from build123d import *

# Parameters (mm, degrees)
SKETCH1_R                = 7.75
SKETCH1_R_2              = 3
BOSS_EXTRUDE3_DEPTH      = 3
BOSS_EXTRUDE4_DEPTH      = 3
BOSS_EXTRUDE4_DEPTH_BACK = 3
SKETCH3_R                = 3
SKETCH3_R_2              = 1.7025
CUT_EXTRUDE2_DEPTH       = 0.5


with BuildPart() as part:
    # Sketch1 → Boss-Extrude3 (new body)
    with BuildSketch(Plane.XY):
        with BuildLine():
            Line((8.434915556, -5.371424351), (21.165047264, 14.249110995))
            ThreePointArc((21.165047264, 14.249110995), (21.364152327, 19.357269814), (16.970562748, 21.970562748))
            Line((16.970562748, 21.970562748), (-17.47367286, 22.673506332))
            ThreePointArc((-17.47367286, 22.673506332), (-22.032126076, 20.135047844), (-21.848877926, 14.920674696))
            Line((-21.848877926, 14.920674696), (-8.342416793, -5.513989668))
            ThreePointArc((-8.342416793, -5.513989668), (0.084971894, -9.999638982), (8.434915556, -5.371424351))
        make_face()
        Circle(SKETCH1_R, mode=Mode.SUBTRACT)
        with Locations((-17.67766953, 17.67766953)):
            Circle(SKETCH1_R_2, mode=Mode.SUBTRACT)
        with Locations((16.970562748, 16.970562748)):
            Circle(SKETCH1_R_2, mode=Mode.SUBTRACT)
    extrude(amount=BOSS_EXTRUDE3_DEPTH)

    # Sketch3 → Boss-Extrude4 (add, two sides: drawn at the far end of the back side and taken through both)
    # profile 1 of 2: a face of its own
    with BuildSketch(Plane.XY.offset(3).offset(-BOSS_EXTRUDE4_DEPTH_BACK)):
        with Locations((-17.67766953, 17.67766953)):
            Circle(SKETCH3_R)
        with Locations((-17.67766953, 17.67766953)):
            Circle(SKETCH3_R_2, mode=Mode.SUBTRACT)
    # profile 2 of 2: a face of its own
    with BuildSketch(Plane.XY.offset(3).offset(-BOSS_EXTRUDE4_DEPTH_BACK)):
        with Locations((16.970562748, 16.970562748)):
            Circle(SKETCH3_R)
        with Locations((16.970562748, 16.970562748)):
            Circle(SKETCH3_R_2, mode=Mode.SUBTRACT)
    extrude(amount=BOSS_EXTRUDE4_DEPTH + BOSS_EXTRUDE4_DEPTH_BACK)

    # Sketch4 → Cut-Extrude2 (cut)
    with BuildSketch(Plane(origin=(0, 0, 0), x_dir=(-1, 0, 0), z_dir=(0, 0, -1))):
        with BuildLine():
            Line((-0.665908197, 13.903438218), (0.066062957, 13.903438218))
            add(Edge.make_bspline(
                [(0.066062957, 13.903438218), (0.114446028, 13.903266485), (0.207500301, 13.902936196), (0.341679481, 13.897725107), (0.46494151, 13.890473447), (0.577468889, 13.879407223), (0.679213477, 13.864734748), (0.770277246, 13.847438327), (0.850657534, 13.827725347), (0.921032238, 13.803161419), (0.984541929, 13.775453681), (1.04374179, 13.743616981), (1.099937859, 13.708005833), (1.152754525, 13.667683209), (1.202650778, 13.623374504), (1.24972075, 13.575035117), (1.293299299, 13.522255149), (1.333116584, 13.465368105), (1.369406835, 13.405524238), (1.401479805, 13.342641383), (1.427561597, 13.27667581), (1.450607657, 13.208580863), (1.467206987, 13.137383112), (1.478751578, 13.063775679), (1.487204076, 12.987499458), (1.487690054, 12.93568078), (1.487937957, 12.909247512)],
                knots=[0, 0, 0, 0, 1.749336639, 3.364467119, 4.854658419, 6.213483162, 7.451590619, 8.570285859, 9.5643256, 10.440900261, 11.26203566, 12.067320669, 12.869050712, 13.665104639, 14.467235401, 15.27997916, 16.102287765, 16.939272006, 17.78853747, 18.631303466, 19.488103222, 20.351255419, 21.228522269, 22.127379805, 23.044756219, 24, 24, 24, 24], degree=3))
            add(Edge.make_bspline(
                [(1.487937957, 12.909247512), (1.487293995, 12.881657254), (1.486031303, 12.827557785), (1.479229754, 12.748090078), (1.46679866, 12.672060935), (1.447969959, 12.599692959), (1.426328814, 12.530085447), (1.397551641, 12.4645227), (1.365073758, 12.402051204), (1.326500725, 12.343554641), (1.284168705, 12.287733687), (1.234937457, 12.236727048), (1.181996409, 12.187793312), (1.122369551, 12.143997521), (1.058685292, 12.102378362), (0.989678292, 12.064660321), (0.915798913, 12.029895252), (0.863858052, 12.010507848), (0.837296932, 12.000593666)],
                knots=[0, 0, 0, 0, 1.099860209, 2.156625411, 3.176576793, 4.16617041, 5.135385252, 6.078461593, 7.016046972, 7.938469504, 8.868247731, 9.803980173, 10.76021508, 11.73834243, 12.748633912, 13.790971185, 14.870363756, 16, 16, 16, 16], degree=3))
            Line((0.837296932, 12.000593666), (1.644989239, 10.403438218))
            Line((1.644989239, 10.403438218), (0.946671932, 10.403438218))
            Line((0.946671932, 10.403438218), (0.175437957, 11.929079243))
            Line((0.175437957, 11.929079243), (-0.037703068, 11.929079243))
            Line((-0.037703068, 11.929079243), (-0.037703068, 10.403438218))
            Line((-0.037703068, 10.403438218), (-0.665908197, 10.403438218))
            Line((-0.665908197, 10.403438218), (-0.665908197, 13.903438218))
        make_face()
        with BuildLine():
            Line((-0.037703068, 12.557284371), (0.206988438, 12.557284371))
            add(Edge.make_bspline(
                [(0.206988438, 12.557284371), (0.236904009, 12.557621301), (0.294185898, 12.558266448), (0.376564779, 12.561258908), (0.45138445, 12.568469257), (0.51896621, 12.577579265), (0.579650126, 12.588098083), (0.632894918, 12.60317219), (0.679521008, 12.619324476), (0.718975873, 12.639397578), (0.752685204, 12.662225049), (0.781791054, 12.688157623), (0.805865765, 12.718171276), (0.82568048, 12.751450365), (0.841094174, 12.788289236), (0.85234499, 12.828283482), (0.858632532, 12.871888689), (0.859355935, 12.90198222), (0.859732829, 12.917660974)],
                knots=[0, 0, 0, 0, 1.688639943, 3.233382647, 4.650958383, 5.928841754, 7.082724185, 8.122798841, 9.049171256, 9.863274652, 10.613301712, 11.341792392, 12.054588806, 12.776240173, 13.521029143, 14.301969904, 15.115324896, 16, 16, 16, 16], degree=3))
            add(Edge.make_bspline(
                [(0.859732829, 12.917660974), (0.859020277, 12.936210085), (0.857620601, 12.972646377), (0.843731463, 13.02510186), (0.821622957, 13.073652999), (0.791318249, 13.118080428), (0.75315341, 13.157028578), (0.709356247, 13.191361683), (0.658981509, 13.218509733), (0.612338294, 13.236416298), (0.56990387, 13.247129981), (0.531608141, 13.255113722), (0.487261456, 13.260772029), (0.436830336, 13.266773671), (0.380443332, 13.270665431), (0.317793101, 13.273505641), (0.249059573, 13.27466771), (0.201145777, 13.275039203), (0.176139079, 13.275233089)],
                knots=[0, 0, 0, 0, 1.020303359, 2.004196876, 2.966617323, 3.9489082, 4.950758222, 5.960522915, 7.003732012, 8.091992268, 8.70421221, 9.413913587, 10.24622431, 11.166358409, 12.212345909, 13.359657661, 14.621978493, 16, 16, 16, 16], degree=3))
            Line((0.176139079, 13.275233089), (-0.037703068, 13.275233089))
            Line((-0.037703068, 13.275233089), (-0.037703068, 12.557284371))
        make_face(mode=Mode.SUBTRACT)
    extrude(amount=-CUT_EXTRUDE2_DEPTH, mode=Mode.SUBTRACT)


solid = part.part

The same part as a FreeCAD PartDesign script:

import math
import FreeCAD as App
import Part
import Sketcher

V = App.Vector

doc = App.newDocument("Part")
body = doc.addObject("PartDesign::Body", "Body")

sketch1 = body.newObject("Sketcher::SketchObject", "Sketch")
sketch1.AttachmentSupport = (doc.getObject("XY_Plane"), [""])
sketch1.MapMode = "FlatFace"
sketch1.addGeometry(Part.LineSegment(V(8.4, -5.4, 0), V(21.2, 14.2, 0)), False)
sketch1.addGeometry(Part.ArcOfCircle(Part.Circle(V(17, 17, 0), V(0, 0, 1), 5), math.radians(-33), math.radians(90)), False)
sketch1.addGeometry(Part.LineSegment(V(17, 22, 0), V(-17.5, 22.7, 0)), False)
sketch1.addGeometry(Part.ArcOfCircle(Part.Circle(V(-17.7, 17.7, 0), V(0, 0, 1), 5), math.radians(88), math.radians(213)), False)
sketch1.addGeometry(Part.LineSegment(V(-21.8, 14.9, 0), V(-8.3, -5.5, 0)), False)
sketch1.addGeometry(Part.ArcOfCircle(Part.Circle(V(0, 0, 0), V(0, 0, 1), 10), math.radians(-147), math.radians(-32)), False)
sketch1.addGeometry(Part.Circle(V(0, 0, 0), V(0, 0, 1), 7.8), False)
sketch1.addGeometry(Part.Circle(V(-17.7, 17.7, 0), V(0, 0, 1), 3), False)
sketch1.addGeometry(Part.Circle(V(17, 17, 0), V(0, 0, 1), 3), False)
sketch1.addConstraint(Sketcher.Constraint("Tangent", 0, 2, 1, 1))
sketch1.addConstraint(Sketcher.Constraint("Coincident", 1, 2, 2, 1))
sketch1.addConstraint(Sketcher.Constraint("Coincident", 2, 2, 3, 1))
sketch1.addConstraint(Sketcher.Constraint("Tangent", 3, 2, 4, 1))
sketch1.addConstraint(Sketcher.Constraint("Tangent", 4, 2, 5, 1))
sketch1.addConstraint(Sketcher.Constraint("Coincident", 5, 2, 0, 1))
sketch1.addConstraint(Sketcher.Constraint("Coincident", 5, 3, -1, 1))
sketch1.addConstraint(Sketcher.Constraint("Coincident", 6, 3, -1, 1))
sketch1.addConstraint(Sketcher.Constraint("Coincident", 7, 3, 3, 3))
sketch1.addConstraint(Sketcher.Constraint("Coincident", 8, 3, 1, 3))
sketch1.addConstraint(Sketcher.Constraint("Equal", 1, 3))
sketch1.addConstraint(Sketcher.Constraint("Equal", 7, 8))
sketch1.addConstraint(Sketcher.Constraint("Vertical", 8, 3, 1, 2))
sketch1.addConstraint(Sketcher.Constraint("Diameter", 7, 6.0))
sketch1.addConstraint(Sketcher.Constraint("Radius", 1, 5.0))
sketch1.addConstraint(Sketcher.Constraint("Radius", 5, 10.0))
sketch1.addConstraint(Sketcher.Constraint("Diameter", 6, 15.5))
sketch1.addConstraint(Sketcher.Constraint("DistanceX", 3, 3, -1, 1, 17.67767))
sketch1.addConstraint(Sketcher.Constraint("DistanceY", -1, 1, 3, 3, 17.67767))
sketch1.addConstraint(Sketcher.Constraint("DistanceY", -1, 1, 0, 2, 14.249111))
sketch1.addConstraint(Sketcher.Constraint("DistanceY", 0, 2, 1, 3, 2.721452))
sketch1.addConstraint(Sketcher.Constraint("DistanceY", 3, 2, 2, 2, 7.752832))
sketch1.addConstraint(Sketcher.Constraint("DistanceX", 5, 2, 0, 2, 12.730132))
pad1 = body.newObject("PartDesign::Pad", "Pad")
pad1.Profile = sketch1
pad1.Length = 3

sketch2 = body.newObject("Sketcher::SketchObject", "Sketch001")
sketch2.AttachmentSupport = (doc.getObject("XY_Plane"), [""])
sketch2.MapMode = "FlatFace"
sketch2.AttachmentOffset = App.Placement(V(0, 0, 3), App.Rotation())
sketch2.addGeometry(Part.Circle(V(-17.7, 17.7, 0), V(0, 0, 1), 3), False)
sketch2.addGeometry(Part.Circle(V(-17.7, 17.7, 0), V(0, 0, 1), 1.7), False)
sketch2.addGeometry(Part.Circle(V(17, 17, 0), V(0, 0, 1), 3), False)
sketch2.addGeometry(Part.Circle(V(17, 17, 0), V(0, 0, 1), 1.7), False)
sketch2.addConstraint(Sketcher.Constraint("Coincident", 1, 3, 0, 3))
sketch2.addConstraint(Sketcher.Constraint("Coincident", 3, 3, 2, 3))
sketch2.addConstraint(Sketcher.Constraint("Equal", 0, 2))
sketch2.addConstraint(Sketcher.Constraint("Equal", 1, 3))
sketch2.addConstraint(Sketcher.Constraint("Diameter", 0, 6.0))
sketch2.addConstraint(Sketcher.Constraint("Diameter", 1, 3.405))
sketch2.addConstraint(Sketcher.Constraint("DistanceX", 0, 3, -1, 1, 17.67767))
sketch2.addConstraint(Sketcher.Constraint("DistanceY", -1, 1, 0, 3, 17.67767))
sketch2.addConstraint(Sketcher.Constraint("DistanceX", -1, 1, 2, 3, 16.970563))
sketch2.addConstraint(Sketcher.Constraint("DistanceY", -1, 1, 2, 3, 16.970563))
pad2 = body.newObject("PartDesign::Pad", "Pad001")
pad2.Profile = sketch2
pad2.Type = "TwoLengths"
pad2.Length = 3
pad2.Length2 = 3

sketch3 = body.newObject("Sketcher::SketchObject", "Sketch002")
sketch3.AttachmentSupport = (doc.getObject("XY_Plane"), [""])
sketch3.MapMode = "FlatFace"
sketch3.addGeometry(Part.LineSegment(V(-0.066063, 13.903438, 0), V(0.665908, 13.903438, 0)), False)
sketch3.addGeometry(Part.LineSegment(V(0.665908, 13.903438, 0), V(0.665908, 10.403438, 0)), False)
sketch3.addGeometry(Part.LineSegment(V(0.665908, 10.403438, 0), V(0.037703, 10.403438, 0)), False)
sketch3.addGeometry(Part.LineSegment(V(0.037703, 10.403438, 0), V(0.037703, 11.929079, 0)), False)
sketch3.addGeometry(Part.LineSegment(V(0.037703, 11.929079, 0), V(-0.175438, 11.929079, 0)), False)
sketch3.addGeometry(Part.LineSegment(V(-0.175438, 11.929079, 0), V(-0.946672, 10.403438, 0)), False)
sketch3.addGeometry(Part.LineSegment(V(-0.946672, 10.403438, 0), V(-1.644989, 10.403438, 0)), False)
sketch3.addGeometry(Part.LineSegment(V(-1.644989, 10.403438, 0), V(-0.837297, 12.000594, 0)), False)
sketch3.addGeometry(Part.BSplineCurve([V(-1.487938, 12.909248, 0), V(-1.487294, 12.881657, 0), V(-1.486031, 12.827558, 0), V(-1.47923, 12.74809, 0), V(-1.466799, 12.672061, 0), V(-1.44797, 12.599693, 0), V(-1.426329, 12.530085, 0), V(-1.397552, 12.464523, 0), V(-1.365074, 12.402051, 0), V(-1.326501, 12.343555, 0), V(-1.284169, 12.287734, 0), V(-1.234937, 12.236727, 0), V(-1.181996, 12.187793, 0), V(-1.12237, 12.143998, 0), V(-1.058685, 12.102378, 0), V(-0.989678, 12.06466, 0), V(-0.915799, 12.029895, 0), V(-0.863858, 12.010508, 0), V(-0.837297, 12.000594, 0)], [4, 1, 1, 1, 1, 1, 1, 1, 1, 1, 1, 1, 1, 1, 1, 1, 4], [0, 1.099860209, 2.156625411, 3.176576793, 4.16617041, 5.135385252, 6.078461593, 7.016046972, 7.938469504, 8.868247731, 9.803980173, 10.76021508, 11.73834243, 12.748633912, 13.790971185, 14.870363756, 16], False, 3, [1, 1, 1, 1, 1, 1, 1, 1, 1, 1, 1, 1, 1, 1, 1, 1, 1, 1, 1], False), False)
sketch3.addGeometry(Part.BSplineCurve([V(-0.066063, 13.903438, 0), V(-0.114446, 13.903266, 0), V(-0.2075, 13.902936, 0), V(-0.341679, 13.897725, 0), V(-0.464942, 13.890473, 0), V(-0.577469, 13.879407, 0), V(-0.679213, 13.864735, 0), V(-0.770277, 13.847438, 0), V(-0.850658, 13.827725, 0), V(-0.921032, 13.803161, 0), V(-0.984542, 13.775454, 0), V(-1.043742, 13.743617, 0), V(-1.099938, 13.708006, 0), V(-1.152755, 13.667683, 0), V(-1.202651, 13.623375, 0), V(-1.249721, 13.575035, 0), V(-1.293299, 13.522255, 0), V(-1.333117, 13.465368, 0), V(-1.369407, 13.405524, 0), V(-1.40148, 13.342641, 0), V(-1.427562, 13.276676, 0), V(-1.450608, 13.208581, 0), V(-1.467207, 13.137383, 0), V(-1.478752, 13.063776, 0), V(-1.487204, 12.987499, 0), V(-1.48769, 12.935681, 0), V(-1.487938, 12.909248, 0)], [4, 1, 1, 1, 1, 1, 1, 1, 1, 1, 1, 1, 1, 1, 1, 1, 1, 1, 1, 1, 1, 1, 1, 1, 4], [0, 1.749336639, 3.364467119, 4.854658419, 6.213483162, 7.451590619, 8.570285859, 9.5643256, 10.440900261, 11.26203566, 12.067320669, 12.869050712, 13.665104639, 14.467235401, 15.27997916, 16.102287765, 16.939272006, 17.78853747, 18.631303466, 19.488103222, 20.351255419, 21.228522269, 22.127379805, 23.044756219, 24], False, 3, [1, 1, 1, 1, 1, 1, 1, 1, 1, 1, 1, 1, 1, 1, 1, 1, 1, 1, 1, 1, 1, 1, 1, 1, 1, 1, 1], False), False)
sketch3.addGeometry(Part.LineSegment(V(0.037703, 12.557284, 0), V(0.037703, 13.275233, 0)), False)
sketch3.addGeometry(Part.LineSegment(V(0.037703, 13.275233, 0), V(-0.176139, 13.275233, 0)), False)
sketch3.addGeometry(Part.BSplineCurve([V(-0.859733, 12.917661, 0), V(-0.85902, 12.93621, 0), V(-0.857621, 12.972646, 0), V(-0.843731, 13.025102, 0), V(-0.821623, 13.073653, 0), V(-0.791318, 13.11808, 0), V(-0.753153, 13.157029, 0), V(-0.709356, 13.191362, 0), V(-0.658982, 13.21851, 0), V(-0.612338, 13.236416, 0), V(-0.569904, 13.24713, 0), V(-0.531608, 13.255114, 0), V(-0.487261, 13.260772, 0), V(-0.43683, 13.266774, 0), V(-0.380443, 13.270665, 0), V(-0.317793, 13.273506, 0), V(-0.24906, 13.274668, 0), V(-0.201146, 13.275039, 0), V(-0.176139, 13.275233, 0)], [4, 1, 1, 1, 1, 1, 1, 1, 1, 1, 1, 1, 1, 1, 1, 1, 4], [0, 1.020303359, 2.004196876, 2.966617323, 3.9489082, 4.950758222, 5.960522915, 7.003732012, 8.091992268, 8.70421221, 9.413913587, 10.24622431, 11.166358409, 12.212345909, 13.359657661, 14.621978493, 16], False, 3, [1, 1, 1, 1, 1, 1, 1, 1, 1, 1, 1, 1, 1, 1, 1, 1, 1, 1, 1], False), False)
sketch3.addGeometry(Part.BSplineCurve([V(-0.206988, 12.557284, 0), V(-0.236904, 12.557621, 0), V(-0.294186, 12.558266, 0), V(-0.376565, 12.561259, 0), V(-0.451384, 12.568469, 0), V(-0.518966, 12.577579, 0), V(-0.57965, 12.588098, 0), V(-0.632895, 12.603172, 0), V(-0.679521, 12.619324, 0), V(-0.718976, 12.639398, 0), V(-0.752685, 12.662225, 0), V(-0.781791, 12.688158, 0), V(-0.805866, 12.718171, 0), V(-0.82568, 12.75145, 0), V(-0.841094, 12.788289, 0), V(-0.852345, 12.828283, 0), V(-0.858633, 12.871889, 0), V(-0.859356, 12.901982, 0), V(-0.859733, 12.917661, 0)], [4, 1, 1, 1, 1, 1, 1, 1, 1, 1, 1, 1, 1, 1, 1, 1, 4], [0, 1.688639943, 3.233382647, 4.650958383, 5.928841754, 7.082724185, 8.122798841, 9.049171256, 9.863274652, 10.613301712, 11.341792392, 12.054588806, 12.776240173, 13.521029143, 14.301969904, 15.115324896, 16], False, 3, [1, 1, 1, 1, 1, 1, 1, 1, 1, 1, 1, 1, 1, 1, 1, 1, 1, 1, 1], False), False)
sketch3.addGeometry(Part.LineSegment(V(-0.206988, 12.557284, 0), V(0.037703, 12.557284, 0)), False)
sketch3.addConstraint(Sketcher.Constraint("Block", 8))
sketch3.addConstraint(Sketcher.Constraint("Block", 9))
sketch3.addConstraint(Sketcher.Constraint("Block", 12))
sketch3.addConstraint(Sketcher.Constraint("Block", 13))
sketch3.addConstraint(Sketcher.Constraint("Coincident", 0, 2, 1, 1))
sketch3.addConstraint(Sketcher.Constraint("Coincident", 1, 2, 2, 1))
sketch3.addConstraint(Sketcher.Constraint("Coincident", 2, 2, 3, 1))
sketch3.addConstraint(Sketcher.Constraint("Coincident", 3, 2, 4, 1))
sketch3.addConstraint(Sketcher.Constraint("Coincident", 4, 2, 5, 1))
sketch3.addConstraint(Sketcher.Constraint("Coincident", 5, 2, 6, 1))
sketch3.addConstraint(Sketcher.Constraint("Coincident", 6, 2, 7, 1))
sketch3.addConstraint(Sketcher.Constraint("Coincident", 7, 2, 8, 2))
sketch3.addConstraint(Sketcher.Constraint("Coincident", 9, 1, 0, 1))
sketch3.addConstraint(Sketcher.Constraint("Coincident", 10, 2, 11, 1))
sketch3.addConstraint(Sketcher.Constraint("Coincident", 11, 2, 12, 2))
sketch3.addConstraint(Sketcher.Constraint("Coincident", 13, 1, 14, 1))
sketch3.addConstraint(Sketcher.Constraint("Coincident", 14, 2, 10, 1))
sketch3.addConstraint(Sketcher.Constraint("Horizontal", 0))
sketch3.addConstraint(Sketcher.Constraint("Vertical", 1))
sketch3.addConstraint(Sketcher.Constraint("Horizontal", 2))
sketch3.addConstraint(Sketcher.Constraint("Vertical", 3))
sketch3.addConstraint(Sketcher.Constraint("Horizontal", 4))
sketch3.addConstraint(Sketcher.Constraint("Horizontal", 6))
sketch3.addConstraint(Sketcher.Constraint("Vertical", 10))
sketch3.addConstraint(Sketcher.Constraint("Horizontal", 11))
sketch3.addConstraint(Sketcher.Constraint("Horizontal", 14))
sketch3.addConstraint(Sketcher.Constraint("Horizontal", 2, 2, 5, 2))
sketch3.addConstraint(Sketcher.Constraint("Vertical", 3, 2, 10, 2))
sketch3.addConstraint(Sketcher.Constraint("DistanceY", 1, 2, 1, 1, 3.5))
sketch3.addConstraint(Sketcher.Constraint("DistanceX", 7, 2, 3, 2, 0.875))
sketch3.addConstraint(Sketcher.Constraint("DistanceX", 0, 1, 0, 2, 0.731971))
sketch3.addConstraint(Sketcher.Constraint("DistanceX", 4, 2, 4, 1, 0.213141))
sketch3.addConstraint(Sketcher.Constraint("DistanceY", 3, 1, 3, 2, 1.525641))
sketch3.addConstraint(Sketcher.Constraint("Distance", 7, 1.789769))
sketch3.addConstraint(Sketcher.Constraint("DistanceX", 6, 2, 6, 1, 0.698317))
pocket1 = body.newObject("PartDesign::Pocket", "Pocket")
pocket1.Profile = sketch3
pocket1.Length = 0.5
pocket1.Reversed = True

doc.recompute()
